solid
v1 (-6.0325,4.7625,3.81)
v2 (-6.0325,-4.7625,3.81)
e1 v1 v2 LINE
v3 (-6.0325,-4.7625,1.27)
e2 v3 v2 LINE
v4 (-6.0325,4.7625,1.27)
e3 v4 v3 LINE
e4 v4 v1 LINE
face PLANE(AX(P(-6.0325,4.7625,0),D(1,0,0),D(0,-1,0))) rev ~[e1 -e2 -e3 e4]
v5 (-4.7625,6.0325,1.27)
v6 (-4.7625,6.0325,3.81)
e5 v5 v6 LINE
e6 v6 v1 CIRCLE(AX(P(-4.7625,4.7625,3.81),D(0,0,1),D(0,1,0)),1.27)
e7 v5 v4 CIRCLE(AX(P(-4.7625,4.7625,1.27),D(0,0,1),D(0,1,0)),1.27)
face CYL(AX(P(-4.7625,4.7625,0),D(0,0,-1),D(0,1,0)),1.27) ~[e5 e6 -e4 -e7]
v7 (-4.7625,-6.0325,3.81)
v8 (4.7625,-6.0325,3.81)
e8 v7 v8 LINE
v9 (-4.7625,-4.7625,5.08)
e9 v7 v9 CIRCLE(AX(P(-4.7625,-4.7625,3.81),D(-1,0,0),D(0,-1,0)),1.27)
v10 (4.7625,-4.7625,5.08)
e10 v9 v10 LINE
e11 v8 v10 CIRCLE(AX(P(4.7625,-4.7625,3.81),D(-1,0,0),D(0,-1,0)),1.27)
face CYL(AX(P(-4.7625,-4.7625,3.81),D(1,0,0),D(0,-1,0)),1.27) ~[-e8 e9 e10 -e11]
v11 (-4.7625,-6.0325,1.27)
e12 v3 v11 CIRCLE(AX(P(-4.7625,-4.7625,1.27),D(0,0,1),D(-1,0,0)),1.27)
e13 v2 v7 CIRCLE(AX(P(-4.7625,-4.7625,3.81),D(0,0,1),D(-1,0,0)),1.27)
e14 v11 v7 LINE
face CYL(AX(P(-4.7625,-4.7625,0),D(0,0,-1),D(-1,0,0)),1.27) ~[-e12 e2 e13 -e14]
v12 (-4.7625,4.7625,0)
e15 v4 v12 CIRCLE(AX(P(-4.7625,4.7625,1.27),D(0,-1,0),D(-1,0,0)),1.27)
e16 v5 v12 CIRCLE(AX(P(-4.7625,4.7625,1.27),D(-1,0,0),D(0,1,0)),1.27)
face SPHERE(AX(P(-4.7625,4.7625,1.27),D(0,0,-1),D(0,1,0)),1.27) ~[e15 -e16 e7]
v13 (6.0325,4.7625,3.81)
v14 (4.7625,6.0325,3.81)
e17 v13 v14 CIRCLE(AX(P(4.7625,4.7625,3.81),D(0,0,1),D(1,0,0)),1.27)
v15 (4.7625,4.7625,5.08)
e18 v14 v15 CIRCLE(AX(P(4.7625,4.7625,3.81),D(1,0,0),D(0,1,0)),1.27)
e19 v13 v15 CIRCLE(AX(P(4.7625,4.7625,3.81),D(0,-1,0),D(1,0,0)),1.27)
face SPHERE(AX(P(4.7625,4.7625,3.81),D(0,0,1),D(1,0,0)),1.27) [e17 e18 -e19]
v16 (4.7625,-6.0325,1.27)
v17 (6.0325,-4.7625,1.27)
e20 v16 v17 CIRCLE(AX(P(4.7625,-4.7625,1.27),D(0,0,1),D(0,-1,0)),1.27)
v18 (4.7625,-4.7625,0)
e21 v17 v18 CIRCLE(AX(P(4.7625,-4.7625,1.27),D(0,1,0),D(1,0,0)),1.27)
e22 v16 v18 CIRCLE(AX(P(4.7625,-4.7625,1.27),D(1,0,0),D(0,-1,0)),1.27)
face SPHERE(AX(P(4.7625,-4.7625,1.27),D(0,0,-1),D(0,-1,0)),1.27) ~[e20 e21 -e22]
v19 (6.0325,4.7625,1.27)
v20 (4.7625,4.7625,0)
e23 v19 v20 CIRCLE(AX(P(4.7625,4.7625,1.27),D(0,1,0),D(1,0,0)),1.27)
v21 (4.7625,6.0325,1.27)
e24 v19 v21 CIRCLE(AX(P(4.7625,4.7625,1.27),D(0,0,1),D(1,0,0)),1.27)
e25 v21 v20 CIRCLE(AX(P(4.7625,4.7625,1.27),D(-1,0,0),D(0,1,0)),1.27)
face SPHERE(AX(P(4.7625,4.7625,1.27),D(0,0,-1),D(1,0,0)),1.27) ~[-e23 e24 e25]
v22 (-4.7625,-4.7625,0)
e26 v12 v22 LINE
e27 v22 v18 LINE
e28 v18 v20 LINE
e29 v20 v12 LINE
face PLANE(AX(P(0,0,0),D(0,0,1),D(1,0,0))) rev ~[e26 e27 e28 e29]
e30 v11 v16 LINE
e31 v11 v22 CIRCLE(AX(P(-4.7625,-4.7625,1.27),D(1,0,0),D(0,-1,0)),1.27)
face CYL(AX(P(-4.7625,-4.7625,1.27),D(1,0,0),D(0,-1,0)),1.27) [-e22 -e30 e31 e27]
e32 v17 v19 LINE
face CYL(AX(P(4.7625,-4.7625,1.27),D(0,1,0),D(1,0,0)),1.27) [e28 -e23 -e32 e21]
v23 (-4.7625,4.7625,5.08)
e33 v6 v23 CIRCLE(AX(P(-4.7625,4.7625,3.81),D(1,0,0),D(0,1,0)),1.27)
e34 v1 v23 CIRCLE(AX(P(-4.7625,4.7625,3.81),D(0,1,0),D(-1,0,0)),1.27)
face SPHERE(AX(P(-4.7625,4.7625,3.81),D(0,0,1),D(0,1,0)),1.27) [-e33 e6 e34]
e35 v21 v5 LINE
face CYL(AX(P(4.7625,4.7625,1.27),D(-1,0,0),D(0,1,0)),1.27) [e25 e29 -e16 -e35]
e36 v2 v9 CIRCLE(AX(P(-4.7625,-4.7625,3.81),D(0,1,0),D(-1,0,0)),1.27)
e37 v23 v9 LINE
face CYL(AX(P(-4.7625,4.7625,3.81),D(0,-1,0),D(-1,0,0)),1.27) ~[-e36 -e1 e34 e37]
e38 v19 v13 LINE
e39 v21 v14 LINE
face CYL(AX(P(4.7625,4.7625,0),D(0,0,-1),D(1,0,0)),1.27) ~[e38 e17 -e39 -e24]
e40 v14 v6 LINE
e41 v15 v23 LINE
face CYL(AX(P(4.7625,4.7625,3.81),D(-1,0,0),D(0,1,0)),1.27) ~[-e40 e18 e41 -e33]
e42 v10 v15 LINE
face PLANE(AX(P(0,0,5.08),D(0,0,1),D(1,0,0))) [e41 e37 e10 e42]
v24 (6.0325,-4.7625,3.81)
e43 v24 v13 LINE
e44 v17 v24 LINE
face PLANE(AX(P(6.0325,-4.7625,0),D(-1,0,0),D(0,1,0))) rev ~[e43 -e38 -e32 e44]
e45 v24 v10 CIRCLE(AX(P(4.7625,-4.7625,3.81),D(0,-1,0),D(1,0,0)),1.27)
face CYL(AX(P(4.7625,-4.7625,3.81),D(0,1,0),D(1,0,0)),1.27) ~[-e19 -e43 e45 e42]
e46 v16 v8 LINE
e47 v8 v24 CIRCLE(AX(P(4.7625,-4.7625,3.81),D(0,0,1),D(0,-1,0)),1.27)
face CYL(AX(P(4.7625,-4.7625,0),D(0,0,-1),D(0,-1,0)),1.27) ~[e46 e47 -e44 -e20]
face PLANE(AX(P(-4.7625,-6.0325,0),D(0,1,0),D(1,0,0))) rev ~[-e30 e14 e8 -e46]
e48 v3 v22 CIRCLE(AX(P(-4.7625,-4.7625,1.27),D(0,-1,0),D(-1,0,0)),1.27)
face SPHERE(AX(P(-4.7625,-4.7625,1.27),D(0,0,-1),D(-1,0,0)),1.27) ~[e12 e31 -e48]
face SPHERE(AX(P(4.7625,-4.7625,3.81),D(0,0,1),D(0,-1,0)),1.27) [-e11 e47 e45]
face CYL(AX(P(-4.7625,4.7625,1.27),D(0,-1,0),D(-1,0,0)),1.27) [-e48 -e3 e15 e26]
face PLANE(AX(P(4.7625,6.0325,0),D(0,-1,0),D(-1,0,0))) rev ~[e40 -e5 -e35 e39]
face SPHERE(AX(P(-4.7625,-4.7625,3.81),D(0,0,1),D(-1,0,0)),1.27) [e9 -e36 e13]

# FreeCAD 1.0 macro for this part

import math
import FreeCAD as App
import Part
import Sketcher
from FreeCAD import Vector
Q = App.Units.Quantity


def edges_at(feature, points):
    """Names of the edges that pass closest to the given points."""
    edges = feature.Shape.Edges
    near = lambda p: min(range(len(edges)), key=lambda i: edges[i].distToShape(Part.Vertex(*p))[0])
    return sorted({f"Edge{near(p) + 1}" for p in points})

doc = App.newDocument("Part")
body = doc.addObject("PartDesign::Body", "Body")

# Sketch on XY plane
sketch1 = body.newObject("Sketcher::SketchObject", "Sketch")
sketch1.AttachmentSupport = (doc.getObject("XY_Plane"), [""])
sketch1.MapMode = "FlatFace"
sketch1.addGeometry(Part.ArcOfCircle(Part.Circle(Vector(4.8, 4.8, 0), Vector(0, 0, 1), 1.3), math.radians(0), math.radians(90)), False)
sketch1.addGeometry(Part.LineSegment(Vector(4.8, 6, 0), Vector(-4.8, 6, 0)), False)
sketch1.addGeometry(Part.ArcOfCircle(Part.Circle(Vector(-4.8, 4.8, 0), Vector(0, 0, 1), 1.3), math.radians(90), math.radians(180)), False)
sketch1.addGeometry(Part.LineSegment(Vector(-6, 4.8, 0), Vector(-6, -4.8, 0)), False)
sketch1.addGeometry(Part.ArcOfCircle(Part.Circle(Vector(-4.8, -4.8, 0), Vector(0, 0, 1), 1.3), math.radians(180), math.radians(270)), False)
sketch1.addGeometry(Part.LineSegment(Vector(-4.8, -6, 0), Vector(4.8, -6, 0)), False)
sketch1.addGeometry(Part.ArcOfCircle(Part.Circle(Vector(4.8, -4.8, 0), Vector(0, 0, 1), 1.3), math.radians(-90), math.radians(0)), False)
sketch1.addGeometry(Part.LineSegment(Vector(6, -4.8, 0), Vector(6, 4.8, 0)), False)
sketch1.addConstraint(Sketcher.Constraint("Tangent", 0, 2, 1, 1))
sketch1.addConstraint(Sketcher.Constraint("Tangent", 1, 2, 2, 1))
sketch1.addConstraint(Sketcher.Constraint("Tangent", 2, 2, 3, 1))
sketch1.addConstraint(Sketcher.Constraint("Tangent", 3, 2, 4, 1))
sketch1.addConstraint(Sketcher.Constraint("Tangent", 4, 2, 5, 1))
sketch1.addConstraint(Sketcher.Constraint("Tangent", 5, 2, 6, 1))
sketch1.addConstraint(Sketcher.Constraint("Tangent", 6, 2, 7, 1))
sketch1.addConstraint(Sketcher.Constraint("Tangent", 7, 2, 0, 1))
sketch1.addConstraint(Sketcher.Constraint("Horizontal", 1))
sketch1.addConstraint(Sketcher.Constraint("Vertical", 3))
sketch1.addConstraint(Sketcher.Constraint("Horizontal", 5))
sketch1.addConstraint(Sketcher.Constraint("Vertical", 7))
sketch1.addConstraint(Sketcher.Constraint("Equal", 0, 2))
sketch1.addConstraint(Sketcher.Constraint("Equal", 2, 4))
sketch1.addConstraint(Sketcher.Constraint("Equal", 4, 6))
sketch1.addConstraint(Sketcher.Constraint("Symmetric", 0, 3, 4, 3, -1, 1))
sketch1.addConstraint(Sketcher.Constraint("Equal", 5, 3))
sketch1.addConstraint(Sketcher.Constraint("Radius", 0, Q("0.05 in")))
sketch1.addConstraint(Sketcher.Constraint("DistanceX", 1, 2, 1, 1, Q("0.375 in")))
pad1 = body.newObject("PartDesign::Pad", "Pad")
pad1.Profile = sketch1
pad1.Length = Q("0.2 in")
doc.recompute()

fillet = body.newObject("PartDesign::Fillet", "Fillet")
fillet.Base = (pad1, edges_at(pad1, [(0, -6.032, 5.08), (0, -6.032, 0)]))
fillet.Radius = Q("0.05 in")

doc.recompute()
